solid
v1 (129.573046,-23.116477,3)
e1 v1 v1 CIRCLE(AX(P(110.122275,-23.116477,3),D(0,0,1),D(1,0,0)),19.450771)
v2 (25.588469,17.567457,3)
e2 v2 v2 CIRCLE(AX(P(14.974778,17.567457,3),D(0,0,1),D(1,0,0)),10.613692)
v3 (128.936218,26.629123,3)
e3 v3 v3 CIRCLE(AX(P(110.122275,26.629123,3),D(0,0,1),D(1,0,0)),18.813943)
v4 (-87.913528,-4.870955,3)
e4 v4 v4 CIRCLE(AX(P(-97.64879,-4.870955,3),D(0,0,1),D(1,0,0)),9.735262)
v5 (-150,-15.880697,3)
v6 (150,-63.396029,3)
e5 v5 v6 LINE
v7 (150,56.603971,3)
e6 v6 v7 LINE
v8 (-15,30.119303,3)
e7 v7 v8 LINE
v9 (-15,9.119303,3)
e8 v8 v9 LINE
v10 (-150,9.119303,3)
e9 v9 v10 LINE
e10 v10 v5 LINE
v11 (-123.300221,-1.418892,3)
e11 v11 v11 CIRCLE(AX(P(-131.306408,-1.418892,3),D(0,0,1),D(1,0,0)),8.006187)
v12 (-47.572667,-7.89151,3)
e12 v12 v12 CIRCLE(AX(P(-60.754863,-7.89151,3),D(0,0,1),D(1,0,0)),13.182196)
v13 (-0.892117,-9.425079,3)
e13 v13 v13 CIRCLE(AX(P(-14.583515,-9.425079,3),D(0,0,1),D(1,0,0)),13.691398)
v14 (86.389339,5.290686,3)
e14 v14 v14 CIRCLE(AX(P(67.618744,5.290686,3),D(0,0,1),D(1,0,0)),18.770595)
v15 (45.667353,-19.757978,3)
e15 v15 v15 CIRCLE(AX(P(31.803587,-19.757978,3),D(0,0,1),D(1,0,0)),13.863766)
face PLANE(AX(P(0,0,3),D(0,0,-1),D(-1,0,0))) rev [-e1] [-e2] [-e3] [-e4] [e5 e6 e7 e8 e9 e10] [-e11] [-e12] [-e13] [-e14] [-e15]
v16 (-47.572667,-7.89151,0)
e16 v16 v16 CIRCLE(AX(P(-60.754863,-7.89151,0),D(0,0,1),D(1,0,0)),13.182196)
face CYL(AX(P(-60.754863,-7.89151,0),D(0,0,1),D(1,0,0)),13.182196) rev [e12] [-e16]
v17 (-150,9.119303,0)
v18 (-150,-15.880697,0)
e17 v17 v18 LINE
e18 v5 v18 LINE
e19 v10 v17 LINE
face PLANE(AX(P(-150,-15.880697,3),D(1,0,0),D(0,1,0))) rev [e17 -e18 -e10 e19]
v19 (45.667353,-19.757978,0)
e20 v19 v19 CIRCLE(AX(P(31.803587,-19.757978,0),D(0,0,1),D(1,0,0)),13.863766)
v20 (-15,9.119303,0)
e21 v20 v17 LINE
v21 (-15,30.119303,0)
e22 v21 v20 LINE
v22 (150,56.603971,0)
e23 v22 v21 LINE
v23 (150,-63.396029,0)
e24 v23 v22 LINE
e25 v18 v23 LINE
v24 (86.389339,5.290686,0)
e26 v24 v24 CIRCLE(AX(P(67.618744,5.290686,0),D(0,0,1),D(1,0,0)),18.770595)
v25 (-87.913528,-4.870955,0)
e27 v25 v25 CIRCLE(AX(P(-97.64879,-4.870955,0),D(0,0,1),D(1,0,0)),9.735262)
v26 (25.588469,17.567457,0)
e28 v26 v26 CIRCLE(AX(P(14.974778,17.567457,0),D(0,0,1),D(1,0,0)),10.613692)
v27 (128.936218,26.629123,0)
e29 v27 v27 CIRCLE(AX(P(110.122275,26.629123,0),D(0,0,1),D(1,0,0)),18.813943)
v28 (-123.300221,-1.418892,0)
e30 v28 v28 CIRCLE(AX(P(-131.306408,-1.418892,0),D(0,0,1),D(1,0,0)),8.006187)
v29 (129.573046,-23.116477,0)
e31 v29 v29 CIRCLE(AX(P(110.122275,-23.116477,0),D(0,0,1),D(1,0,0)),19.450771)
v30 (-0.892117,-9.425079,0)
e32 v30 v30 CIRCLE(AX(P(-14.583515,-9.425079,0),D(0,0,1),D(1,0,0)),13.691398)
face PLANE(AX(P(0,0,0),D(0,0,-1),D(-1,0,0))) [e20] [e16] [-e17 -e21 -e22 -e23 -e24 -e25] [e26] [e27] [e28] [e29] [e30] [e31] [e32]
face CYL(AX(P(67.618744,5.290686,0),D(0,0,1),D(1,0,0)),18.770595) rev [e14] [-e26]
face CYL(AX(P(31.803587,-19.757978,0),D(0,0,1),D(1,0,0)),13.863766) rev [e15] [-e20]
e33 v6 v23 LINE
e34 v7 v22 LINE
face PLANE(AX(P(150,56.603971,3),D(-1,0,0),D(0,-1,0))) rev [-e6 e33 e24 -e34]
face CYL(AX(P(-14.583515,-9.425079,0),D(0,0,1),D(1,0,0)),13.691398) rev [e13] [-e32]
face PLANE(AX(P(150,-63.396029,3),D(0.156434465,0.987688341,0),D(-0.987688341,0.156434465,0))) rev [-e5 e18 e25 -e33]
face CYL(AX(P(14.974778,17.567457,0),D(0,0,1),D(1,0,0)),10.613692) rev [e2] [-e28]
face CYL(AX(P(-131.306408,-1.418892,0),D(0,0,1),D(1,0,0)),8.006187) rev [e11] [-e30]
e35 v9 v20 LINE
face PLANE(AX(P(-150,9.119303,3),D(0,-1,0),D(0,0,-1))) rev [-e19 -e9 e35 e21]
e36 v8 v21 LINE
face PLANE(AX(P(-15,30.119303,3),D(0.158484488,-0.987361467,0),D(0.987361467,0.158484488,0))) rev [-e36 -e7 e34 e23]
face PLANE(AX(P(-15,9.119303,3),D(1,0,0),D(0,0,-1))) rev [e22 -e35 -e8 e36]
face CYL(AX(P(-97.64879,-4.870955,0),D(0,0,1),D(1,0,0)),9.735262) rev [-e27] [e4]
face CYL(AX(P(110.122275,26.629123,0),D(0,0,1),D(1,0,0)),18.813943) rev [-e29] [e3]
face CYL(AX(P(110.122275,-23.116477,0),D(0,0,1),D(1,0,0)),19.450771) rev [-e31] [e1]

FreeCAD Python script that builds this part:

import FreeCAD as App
import Part
import Sketcher
Q = App.Units.Quantity

doc = App.newDocument("Part")
body = doc.addObject("PartDesign::Body", "Body")

# Sketch on XY plane
sketch1 = body.newObject("Sketcher::SketchObject", "Sketch")
sketch1.AttachmentSupport = (doc.getObject("XY_Plane"), [""])
sketch1.MapMode = "FlatFace"
sketch1.addGeometry([
    Part.LineSegment(App.Vector(150, -63.396029, 0), App.Vector(150, 56.603971, 0)),  # 0
    Part.LineSegment(App.Vector(150, 56.603971, 0), App.Vector(-15, 30.119303, 0)),  # 1
    Part.LineSegment(App.Vector(-15, 30.119303, 0), App.Vector(-15, 9.119303, 0)),  # 2
    Part.LineSegment(App.Vector(-15, 9.119303, 0), App.Vector(-150, 9.119303, 0)),  # 3
    Part.LineSegment(App.Vector(-150, 9.119303, 0), App.Vector(-150, -15.880697, 0)),  # 4
    Part.LineSegment(App.Vector(-150, -15.880697, 0), App.Vector(150, -63.396029, 0)),  # 5
], False)
sketch1.addConstraint([
    Sketcher.Constraint("Coincident", 0, 2, 1, 1),
    Sketcher.Constraint("Coincident", 1, 2, 2, 1),
    Sketcher.Constraint("Coincident", 2, 2, 3, 1),
    Sketcher.Constraint("Coincident", 3, 2, 4, 1),
    Sketcher.Constraint("Coincident", 4, 2, 5, 1),
    Sketcher.Constraint("Coincident", 5, 2, 0, 1),
    Sketcher.Constraint("Vertical", 0),
    Sketcher.Constraint("Vertical", 2),
    Sketcher.Constraint("Horizontal", 3),
    Sketcher.Constraint("Vertical", 4),
    Sketcher.Constraint("DistanceX", 3, 2, 3, 1, 135.0),
    Sketcher.Constraint("DistanceY", 0, 1, 0, 2, 120.0),
    Sketcher.Constraint("DistanceY", 2, 2, 2, 1, 21.0),
    Sketcher.Constraint("DistanceY", 4, 2, 4, 1, 25.0),
    Sketcher.Constraint("Angle", 5, Q("-9 deg")),
    Sketcher.Constraint("DistanceX", -1, 1, 0, 2, 150.0),
    Sketcher.Constraint("DistanceX", 1, 2, -1, 1, 15.0),
    Sketcher.Constraint("DistanceY", -1, 1, 0, 2, 56.603971),
])
pad1 = body.newObject("PartDesign::Pad", "Pad")
pad1.Profile = sketch1
pad1.Length = 3

# Sketch on XY plane
sketch2 = body.newObject("Sketcher::SketchObject", "Sketch001")
sketch2.AttachmentSupport = (doc.getObject("XY_Plane"), [""])
sketch2.MapMode = "FlatFace"
sketch2.AttachmentOffset = App.Placement(App.Vector(0, 0, 3), App.Rotation())
sketch2.addGeometry([
    Part.Circle(App.Vector(-131.306408, -1.418892, 0), App.Vector(0, 0, 1), 8.006187),  # 0
    Part.Circle(App.Vector(-97.64879, -4.870955, 0), App.Vector(0, 0, 1), 9.735262),  # 1
    Part.Circle(App.Vector(-60.754863, -7.89151, 0), App.Vector(0, 0, 1), 13.182196),  # 2
    Part.Circle(App.Vector(-14.583515, -9.425079, 0), App.Vector(0, 0, 1), 13.691398),  # 3
    Part.Circle(App.Vector(110.122275, -23.116477, 0), App.Vector(0, 0, 1), 19.450771),  # 4
    Part.Circle(App.Vector(110.122275, 26.629123, 0), App.Vector(0, 0, 1), 18.813943),  # 5
    Part.Circle(App.Vector(67.618744, 5.290686, 0), App.Vector(0, 0, 1), 18.770595),  # 6
    Part.Circle(App.Vector(31.803587, -19.757978, 0), App.Vector(0, 0, 1), 13.863766),  # 7
    Part.Circle(App.Vector(14.974778, 17.567457, 0), App.Vector(0, 0, 1), 10.613692),  # 8
], False)
sketch2.addConstraint([
    Sketcher.Constraint("Vertical", 4, 3, 5, 3),
    Sketcher.Constraint("Diameter", 6, 37.541189),
    Sketcher.Constraint("Diameter", 0, 16.012375),
    Sketcher.Constraint("Diameter", 1, 19.470525),
    Sketcher.Constraint("Diameter", 2, 26.364393),
    Sketcher.Constraint("Diameter", 3, 27.382795),
    Sketcher.Constraint("Diameter", 4, 38.901542),
    Sketcher.Constraint("Diameter", 5, 37.627887),
    Sketcher.Constraint("Diameter", 7, 27.727532),
    Sketcher.Constraint("Diameter", 8, 21.227383),
    Sketcher.Constraint("DistanceY", 4, 3, 5, 3, 49.7456),
    Sketcher.Constraint("DistanceX", 3, 3, 7, 3, 46.387102),
    Sketcher.Constraint("DistanceY", 7, 3, 3, 3, 10.332899),
    Sketcher.Constraint("DistanceY", 4, 3, 7, 3, 3.358498),
    Sketcher.Constraint("DistanceX", 0, 3, -1, 1, 131.306408),
    Sketcher.Constraint("DistanceY", 0, 3, -1, 1, 1.418892),
    Sketcher.Constraint("DistanceX", 1, 3, -1, 1, 97.64879),
    Sketcher.Constraint("DistanceY", 2, 3, -1, 1, 7.89151),
    Sketcher.Constraint("DistanceY", 3, 3, -1, 1, 9.425079),
    Sketcher.Constraint("DistanceX", 3, 3, 4, 3, 124.70579),
    Sketcher.Constraint("DistanceY", 4, 3, 1, 3, 18.245522),
    Sketcher.Constraint("DistanceX", 6, 3, 5, 3, 42.50353),
    Sketcher.Constraint("DistanceY", 1, 3, 6, 3, 10.161641),
    Sketcher.Constraint("DistanceX", 2, 3, 7, 3, 92.55845),
    Sketcher.Constraint("DistanceX", 8, 3, 7, 3, 16.828809),
    Sketcher.Constraint("DistanceY", 6, 3, 8, 3, 12.276771),
    Sketcher.Constraint("DistanceX", 2, 3, -1, 1, 60.754863),
])
pocket1 = body.newObject("PartDesign::Pocket", "Pocket")
pocket1.Profile = sketch2
pocket1.Length = 3

doc.recompute()
